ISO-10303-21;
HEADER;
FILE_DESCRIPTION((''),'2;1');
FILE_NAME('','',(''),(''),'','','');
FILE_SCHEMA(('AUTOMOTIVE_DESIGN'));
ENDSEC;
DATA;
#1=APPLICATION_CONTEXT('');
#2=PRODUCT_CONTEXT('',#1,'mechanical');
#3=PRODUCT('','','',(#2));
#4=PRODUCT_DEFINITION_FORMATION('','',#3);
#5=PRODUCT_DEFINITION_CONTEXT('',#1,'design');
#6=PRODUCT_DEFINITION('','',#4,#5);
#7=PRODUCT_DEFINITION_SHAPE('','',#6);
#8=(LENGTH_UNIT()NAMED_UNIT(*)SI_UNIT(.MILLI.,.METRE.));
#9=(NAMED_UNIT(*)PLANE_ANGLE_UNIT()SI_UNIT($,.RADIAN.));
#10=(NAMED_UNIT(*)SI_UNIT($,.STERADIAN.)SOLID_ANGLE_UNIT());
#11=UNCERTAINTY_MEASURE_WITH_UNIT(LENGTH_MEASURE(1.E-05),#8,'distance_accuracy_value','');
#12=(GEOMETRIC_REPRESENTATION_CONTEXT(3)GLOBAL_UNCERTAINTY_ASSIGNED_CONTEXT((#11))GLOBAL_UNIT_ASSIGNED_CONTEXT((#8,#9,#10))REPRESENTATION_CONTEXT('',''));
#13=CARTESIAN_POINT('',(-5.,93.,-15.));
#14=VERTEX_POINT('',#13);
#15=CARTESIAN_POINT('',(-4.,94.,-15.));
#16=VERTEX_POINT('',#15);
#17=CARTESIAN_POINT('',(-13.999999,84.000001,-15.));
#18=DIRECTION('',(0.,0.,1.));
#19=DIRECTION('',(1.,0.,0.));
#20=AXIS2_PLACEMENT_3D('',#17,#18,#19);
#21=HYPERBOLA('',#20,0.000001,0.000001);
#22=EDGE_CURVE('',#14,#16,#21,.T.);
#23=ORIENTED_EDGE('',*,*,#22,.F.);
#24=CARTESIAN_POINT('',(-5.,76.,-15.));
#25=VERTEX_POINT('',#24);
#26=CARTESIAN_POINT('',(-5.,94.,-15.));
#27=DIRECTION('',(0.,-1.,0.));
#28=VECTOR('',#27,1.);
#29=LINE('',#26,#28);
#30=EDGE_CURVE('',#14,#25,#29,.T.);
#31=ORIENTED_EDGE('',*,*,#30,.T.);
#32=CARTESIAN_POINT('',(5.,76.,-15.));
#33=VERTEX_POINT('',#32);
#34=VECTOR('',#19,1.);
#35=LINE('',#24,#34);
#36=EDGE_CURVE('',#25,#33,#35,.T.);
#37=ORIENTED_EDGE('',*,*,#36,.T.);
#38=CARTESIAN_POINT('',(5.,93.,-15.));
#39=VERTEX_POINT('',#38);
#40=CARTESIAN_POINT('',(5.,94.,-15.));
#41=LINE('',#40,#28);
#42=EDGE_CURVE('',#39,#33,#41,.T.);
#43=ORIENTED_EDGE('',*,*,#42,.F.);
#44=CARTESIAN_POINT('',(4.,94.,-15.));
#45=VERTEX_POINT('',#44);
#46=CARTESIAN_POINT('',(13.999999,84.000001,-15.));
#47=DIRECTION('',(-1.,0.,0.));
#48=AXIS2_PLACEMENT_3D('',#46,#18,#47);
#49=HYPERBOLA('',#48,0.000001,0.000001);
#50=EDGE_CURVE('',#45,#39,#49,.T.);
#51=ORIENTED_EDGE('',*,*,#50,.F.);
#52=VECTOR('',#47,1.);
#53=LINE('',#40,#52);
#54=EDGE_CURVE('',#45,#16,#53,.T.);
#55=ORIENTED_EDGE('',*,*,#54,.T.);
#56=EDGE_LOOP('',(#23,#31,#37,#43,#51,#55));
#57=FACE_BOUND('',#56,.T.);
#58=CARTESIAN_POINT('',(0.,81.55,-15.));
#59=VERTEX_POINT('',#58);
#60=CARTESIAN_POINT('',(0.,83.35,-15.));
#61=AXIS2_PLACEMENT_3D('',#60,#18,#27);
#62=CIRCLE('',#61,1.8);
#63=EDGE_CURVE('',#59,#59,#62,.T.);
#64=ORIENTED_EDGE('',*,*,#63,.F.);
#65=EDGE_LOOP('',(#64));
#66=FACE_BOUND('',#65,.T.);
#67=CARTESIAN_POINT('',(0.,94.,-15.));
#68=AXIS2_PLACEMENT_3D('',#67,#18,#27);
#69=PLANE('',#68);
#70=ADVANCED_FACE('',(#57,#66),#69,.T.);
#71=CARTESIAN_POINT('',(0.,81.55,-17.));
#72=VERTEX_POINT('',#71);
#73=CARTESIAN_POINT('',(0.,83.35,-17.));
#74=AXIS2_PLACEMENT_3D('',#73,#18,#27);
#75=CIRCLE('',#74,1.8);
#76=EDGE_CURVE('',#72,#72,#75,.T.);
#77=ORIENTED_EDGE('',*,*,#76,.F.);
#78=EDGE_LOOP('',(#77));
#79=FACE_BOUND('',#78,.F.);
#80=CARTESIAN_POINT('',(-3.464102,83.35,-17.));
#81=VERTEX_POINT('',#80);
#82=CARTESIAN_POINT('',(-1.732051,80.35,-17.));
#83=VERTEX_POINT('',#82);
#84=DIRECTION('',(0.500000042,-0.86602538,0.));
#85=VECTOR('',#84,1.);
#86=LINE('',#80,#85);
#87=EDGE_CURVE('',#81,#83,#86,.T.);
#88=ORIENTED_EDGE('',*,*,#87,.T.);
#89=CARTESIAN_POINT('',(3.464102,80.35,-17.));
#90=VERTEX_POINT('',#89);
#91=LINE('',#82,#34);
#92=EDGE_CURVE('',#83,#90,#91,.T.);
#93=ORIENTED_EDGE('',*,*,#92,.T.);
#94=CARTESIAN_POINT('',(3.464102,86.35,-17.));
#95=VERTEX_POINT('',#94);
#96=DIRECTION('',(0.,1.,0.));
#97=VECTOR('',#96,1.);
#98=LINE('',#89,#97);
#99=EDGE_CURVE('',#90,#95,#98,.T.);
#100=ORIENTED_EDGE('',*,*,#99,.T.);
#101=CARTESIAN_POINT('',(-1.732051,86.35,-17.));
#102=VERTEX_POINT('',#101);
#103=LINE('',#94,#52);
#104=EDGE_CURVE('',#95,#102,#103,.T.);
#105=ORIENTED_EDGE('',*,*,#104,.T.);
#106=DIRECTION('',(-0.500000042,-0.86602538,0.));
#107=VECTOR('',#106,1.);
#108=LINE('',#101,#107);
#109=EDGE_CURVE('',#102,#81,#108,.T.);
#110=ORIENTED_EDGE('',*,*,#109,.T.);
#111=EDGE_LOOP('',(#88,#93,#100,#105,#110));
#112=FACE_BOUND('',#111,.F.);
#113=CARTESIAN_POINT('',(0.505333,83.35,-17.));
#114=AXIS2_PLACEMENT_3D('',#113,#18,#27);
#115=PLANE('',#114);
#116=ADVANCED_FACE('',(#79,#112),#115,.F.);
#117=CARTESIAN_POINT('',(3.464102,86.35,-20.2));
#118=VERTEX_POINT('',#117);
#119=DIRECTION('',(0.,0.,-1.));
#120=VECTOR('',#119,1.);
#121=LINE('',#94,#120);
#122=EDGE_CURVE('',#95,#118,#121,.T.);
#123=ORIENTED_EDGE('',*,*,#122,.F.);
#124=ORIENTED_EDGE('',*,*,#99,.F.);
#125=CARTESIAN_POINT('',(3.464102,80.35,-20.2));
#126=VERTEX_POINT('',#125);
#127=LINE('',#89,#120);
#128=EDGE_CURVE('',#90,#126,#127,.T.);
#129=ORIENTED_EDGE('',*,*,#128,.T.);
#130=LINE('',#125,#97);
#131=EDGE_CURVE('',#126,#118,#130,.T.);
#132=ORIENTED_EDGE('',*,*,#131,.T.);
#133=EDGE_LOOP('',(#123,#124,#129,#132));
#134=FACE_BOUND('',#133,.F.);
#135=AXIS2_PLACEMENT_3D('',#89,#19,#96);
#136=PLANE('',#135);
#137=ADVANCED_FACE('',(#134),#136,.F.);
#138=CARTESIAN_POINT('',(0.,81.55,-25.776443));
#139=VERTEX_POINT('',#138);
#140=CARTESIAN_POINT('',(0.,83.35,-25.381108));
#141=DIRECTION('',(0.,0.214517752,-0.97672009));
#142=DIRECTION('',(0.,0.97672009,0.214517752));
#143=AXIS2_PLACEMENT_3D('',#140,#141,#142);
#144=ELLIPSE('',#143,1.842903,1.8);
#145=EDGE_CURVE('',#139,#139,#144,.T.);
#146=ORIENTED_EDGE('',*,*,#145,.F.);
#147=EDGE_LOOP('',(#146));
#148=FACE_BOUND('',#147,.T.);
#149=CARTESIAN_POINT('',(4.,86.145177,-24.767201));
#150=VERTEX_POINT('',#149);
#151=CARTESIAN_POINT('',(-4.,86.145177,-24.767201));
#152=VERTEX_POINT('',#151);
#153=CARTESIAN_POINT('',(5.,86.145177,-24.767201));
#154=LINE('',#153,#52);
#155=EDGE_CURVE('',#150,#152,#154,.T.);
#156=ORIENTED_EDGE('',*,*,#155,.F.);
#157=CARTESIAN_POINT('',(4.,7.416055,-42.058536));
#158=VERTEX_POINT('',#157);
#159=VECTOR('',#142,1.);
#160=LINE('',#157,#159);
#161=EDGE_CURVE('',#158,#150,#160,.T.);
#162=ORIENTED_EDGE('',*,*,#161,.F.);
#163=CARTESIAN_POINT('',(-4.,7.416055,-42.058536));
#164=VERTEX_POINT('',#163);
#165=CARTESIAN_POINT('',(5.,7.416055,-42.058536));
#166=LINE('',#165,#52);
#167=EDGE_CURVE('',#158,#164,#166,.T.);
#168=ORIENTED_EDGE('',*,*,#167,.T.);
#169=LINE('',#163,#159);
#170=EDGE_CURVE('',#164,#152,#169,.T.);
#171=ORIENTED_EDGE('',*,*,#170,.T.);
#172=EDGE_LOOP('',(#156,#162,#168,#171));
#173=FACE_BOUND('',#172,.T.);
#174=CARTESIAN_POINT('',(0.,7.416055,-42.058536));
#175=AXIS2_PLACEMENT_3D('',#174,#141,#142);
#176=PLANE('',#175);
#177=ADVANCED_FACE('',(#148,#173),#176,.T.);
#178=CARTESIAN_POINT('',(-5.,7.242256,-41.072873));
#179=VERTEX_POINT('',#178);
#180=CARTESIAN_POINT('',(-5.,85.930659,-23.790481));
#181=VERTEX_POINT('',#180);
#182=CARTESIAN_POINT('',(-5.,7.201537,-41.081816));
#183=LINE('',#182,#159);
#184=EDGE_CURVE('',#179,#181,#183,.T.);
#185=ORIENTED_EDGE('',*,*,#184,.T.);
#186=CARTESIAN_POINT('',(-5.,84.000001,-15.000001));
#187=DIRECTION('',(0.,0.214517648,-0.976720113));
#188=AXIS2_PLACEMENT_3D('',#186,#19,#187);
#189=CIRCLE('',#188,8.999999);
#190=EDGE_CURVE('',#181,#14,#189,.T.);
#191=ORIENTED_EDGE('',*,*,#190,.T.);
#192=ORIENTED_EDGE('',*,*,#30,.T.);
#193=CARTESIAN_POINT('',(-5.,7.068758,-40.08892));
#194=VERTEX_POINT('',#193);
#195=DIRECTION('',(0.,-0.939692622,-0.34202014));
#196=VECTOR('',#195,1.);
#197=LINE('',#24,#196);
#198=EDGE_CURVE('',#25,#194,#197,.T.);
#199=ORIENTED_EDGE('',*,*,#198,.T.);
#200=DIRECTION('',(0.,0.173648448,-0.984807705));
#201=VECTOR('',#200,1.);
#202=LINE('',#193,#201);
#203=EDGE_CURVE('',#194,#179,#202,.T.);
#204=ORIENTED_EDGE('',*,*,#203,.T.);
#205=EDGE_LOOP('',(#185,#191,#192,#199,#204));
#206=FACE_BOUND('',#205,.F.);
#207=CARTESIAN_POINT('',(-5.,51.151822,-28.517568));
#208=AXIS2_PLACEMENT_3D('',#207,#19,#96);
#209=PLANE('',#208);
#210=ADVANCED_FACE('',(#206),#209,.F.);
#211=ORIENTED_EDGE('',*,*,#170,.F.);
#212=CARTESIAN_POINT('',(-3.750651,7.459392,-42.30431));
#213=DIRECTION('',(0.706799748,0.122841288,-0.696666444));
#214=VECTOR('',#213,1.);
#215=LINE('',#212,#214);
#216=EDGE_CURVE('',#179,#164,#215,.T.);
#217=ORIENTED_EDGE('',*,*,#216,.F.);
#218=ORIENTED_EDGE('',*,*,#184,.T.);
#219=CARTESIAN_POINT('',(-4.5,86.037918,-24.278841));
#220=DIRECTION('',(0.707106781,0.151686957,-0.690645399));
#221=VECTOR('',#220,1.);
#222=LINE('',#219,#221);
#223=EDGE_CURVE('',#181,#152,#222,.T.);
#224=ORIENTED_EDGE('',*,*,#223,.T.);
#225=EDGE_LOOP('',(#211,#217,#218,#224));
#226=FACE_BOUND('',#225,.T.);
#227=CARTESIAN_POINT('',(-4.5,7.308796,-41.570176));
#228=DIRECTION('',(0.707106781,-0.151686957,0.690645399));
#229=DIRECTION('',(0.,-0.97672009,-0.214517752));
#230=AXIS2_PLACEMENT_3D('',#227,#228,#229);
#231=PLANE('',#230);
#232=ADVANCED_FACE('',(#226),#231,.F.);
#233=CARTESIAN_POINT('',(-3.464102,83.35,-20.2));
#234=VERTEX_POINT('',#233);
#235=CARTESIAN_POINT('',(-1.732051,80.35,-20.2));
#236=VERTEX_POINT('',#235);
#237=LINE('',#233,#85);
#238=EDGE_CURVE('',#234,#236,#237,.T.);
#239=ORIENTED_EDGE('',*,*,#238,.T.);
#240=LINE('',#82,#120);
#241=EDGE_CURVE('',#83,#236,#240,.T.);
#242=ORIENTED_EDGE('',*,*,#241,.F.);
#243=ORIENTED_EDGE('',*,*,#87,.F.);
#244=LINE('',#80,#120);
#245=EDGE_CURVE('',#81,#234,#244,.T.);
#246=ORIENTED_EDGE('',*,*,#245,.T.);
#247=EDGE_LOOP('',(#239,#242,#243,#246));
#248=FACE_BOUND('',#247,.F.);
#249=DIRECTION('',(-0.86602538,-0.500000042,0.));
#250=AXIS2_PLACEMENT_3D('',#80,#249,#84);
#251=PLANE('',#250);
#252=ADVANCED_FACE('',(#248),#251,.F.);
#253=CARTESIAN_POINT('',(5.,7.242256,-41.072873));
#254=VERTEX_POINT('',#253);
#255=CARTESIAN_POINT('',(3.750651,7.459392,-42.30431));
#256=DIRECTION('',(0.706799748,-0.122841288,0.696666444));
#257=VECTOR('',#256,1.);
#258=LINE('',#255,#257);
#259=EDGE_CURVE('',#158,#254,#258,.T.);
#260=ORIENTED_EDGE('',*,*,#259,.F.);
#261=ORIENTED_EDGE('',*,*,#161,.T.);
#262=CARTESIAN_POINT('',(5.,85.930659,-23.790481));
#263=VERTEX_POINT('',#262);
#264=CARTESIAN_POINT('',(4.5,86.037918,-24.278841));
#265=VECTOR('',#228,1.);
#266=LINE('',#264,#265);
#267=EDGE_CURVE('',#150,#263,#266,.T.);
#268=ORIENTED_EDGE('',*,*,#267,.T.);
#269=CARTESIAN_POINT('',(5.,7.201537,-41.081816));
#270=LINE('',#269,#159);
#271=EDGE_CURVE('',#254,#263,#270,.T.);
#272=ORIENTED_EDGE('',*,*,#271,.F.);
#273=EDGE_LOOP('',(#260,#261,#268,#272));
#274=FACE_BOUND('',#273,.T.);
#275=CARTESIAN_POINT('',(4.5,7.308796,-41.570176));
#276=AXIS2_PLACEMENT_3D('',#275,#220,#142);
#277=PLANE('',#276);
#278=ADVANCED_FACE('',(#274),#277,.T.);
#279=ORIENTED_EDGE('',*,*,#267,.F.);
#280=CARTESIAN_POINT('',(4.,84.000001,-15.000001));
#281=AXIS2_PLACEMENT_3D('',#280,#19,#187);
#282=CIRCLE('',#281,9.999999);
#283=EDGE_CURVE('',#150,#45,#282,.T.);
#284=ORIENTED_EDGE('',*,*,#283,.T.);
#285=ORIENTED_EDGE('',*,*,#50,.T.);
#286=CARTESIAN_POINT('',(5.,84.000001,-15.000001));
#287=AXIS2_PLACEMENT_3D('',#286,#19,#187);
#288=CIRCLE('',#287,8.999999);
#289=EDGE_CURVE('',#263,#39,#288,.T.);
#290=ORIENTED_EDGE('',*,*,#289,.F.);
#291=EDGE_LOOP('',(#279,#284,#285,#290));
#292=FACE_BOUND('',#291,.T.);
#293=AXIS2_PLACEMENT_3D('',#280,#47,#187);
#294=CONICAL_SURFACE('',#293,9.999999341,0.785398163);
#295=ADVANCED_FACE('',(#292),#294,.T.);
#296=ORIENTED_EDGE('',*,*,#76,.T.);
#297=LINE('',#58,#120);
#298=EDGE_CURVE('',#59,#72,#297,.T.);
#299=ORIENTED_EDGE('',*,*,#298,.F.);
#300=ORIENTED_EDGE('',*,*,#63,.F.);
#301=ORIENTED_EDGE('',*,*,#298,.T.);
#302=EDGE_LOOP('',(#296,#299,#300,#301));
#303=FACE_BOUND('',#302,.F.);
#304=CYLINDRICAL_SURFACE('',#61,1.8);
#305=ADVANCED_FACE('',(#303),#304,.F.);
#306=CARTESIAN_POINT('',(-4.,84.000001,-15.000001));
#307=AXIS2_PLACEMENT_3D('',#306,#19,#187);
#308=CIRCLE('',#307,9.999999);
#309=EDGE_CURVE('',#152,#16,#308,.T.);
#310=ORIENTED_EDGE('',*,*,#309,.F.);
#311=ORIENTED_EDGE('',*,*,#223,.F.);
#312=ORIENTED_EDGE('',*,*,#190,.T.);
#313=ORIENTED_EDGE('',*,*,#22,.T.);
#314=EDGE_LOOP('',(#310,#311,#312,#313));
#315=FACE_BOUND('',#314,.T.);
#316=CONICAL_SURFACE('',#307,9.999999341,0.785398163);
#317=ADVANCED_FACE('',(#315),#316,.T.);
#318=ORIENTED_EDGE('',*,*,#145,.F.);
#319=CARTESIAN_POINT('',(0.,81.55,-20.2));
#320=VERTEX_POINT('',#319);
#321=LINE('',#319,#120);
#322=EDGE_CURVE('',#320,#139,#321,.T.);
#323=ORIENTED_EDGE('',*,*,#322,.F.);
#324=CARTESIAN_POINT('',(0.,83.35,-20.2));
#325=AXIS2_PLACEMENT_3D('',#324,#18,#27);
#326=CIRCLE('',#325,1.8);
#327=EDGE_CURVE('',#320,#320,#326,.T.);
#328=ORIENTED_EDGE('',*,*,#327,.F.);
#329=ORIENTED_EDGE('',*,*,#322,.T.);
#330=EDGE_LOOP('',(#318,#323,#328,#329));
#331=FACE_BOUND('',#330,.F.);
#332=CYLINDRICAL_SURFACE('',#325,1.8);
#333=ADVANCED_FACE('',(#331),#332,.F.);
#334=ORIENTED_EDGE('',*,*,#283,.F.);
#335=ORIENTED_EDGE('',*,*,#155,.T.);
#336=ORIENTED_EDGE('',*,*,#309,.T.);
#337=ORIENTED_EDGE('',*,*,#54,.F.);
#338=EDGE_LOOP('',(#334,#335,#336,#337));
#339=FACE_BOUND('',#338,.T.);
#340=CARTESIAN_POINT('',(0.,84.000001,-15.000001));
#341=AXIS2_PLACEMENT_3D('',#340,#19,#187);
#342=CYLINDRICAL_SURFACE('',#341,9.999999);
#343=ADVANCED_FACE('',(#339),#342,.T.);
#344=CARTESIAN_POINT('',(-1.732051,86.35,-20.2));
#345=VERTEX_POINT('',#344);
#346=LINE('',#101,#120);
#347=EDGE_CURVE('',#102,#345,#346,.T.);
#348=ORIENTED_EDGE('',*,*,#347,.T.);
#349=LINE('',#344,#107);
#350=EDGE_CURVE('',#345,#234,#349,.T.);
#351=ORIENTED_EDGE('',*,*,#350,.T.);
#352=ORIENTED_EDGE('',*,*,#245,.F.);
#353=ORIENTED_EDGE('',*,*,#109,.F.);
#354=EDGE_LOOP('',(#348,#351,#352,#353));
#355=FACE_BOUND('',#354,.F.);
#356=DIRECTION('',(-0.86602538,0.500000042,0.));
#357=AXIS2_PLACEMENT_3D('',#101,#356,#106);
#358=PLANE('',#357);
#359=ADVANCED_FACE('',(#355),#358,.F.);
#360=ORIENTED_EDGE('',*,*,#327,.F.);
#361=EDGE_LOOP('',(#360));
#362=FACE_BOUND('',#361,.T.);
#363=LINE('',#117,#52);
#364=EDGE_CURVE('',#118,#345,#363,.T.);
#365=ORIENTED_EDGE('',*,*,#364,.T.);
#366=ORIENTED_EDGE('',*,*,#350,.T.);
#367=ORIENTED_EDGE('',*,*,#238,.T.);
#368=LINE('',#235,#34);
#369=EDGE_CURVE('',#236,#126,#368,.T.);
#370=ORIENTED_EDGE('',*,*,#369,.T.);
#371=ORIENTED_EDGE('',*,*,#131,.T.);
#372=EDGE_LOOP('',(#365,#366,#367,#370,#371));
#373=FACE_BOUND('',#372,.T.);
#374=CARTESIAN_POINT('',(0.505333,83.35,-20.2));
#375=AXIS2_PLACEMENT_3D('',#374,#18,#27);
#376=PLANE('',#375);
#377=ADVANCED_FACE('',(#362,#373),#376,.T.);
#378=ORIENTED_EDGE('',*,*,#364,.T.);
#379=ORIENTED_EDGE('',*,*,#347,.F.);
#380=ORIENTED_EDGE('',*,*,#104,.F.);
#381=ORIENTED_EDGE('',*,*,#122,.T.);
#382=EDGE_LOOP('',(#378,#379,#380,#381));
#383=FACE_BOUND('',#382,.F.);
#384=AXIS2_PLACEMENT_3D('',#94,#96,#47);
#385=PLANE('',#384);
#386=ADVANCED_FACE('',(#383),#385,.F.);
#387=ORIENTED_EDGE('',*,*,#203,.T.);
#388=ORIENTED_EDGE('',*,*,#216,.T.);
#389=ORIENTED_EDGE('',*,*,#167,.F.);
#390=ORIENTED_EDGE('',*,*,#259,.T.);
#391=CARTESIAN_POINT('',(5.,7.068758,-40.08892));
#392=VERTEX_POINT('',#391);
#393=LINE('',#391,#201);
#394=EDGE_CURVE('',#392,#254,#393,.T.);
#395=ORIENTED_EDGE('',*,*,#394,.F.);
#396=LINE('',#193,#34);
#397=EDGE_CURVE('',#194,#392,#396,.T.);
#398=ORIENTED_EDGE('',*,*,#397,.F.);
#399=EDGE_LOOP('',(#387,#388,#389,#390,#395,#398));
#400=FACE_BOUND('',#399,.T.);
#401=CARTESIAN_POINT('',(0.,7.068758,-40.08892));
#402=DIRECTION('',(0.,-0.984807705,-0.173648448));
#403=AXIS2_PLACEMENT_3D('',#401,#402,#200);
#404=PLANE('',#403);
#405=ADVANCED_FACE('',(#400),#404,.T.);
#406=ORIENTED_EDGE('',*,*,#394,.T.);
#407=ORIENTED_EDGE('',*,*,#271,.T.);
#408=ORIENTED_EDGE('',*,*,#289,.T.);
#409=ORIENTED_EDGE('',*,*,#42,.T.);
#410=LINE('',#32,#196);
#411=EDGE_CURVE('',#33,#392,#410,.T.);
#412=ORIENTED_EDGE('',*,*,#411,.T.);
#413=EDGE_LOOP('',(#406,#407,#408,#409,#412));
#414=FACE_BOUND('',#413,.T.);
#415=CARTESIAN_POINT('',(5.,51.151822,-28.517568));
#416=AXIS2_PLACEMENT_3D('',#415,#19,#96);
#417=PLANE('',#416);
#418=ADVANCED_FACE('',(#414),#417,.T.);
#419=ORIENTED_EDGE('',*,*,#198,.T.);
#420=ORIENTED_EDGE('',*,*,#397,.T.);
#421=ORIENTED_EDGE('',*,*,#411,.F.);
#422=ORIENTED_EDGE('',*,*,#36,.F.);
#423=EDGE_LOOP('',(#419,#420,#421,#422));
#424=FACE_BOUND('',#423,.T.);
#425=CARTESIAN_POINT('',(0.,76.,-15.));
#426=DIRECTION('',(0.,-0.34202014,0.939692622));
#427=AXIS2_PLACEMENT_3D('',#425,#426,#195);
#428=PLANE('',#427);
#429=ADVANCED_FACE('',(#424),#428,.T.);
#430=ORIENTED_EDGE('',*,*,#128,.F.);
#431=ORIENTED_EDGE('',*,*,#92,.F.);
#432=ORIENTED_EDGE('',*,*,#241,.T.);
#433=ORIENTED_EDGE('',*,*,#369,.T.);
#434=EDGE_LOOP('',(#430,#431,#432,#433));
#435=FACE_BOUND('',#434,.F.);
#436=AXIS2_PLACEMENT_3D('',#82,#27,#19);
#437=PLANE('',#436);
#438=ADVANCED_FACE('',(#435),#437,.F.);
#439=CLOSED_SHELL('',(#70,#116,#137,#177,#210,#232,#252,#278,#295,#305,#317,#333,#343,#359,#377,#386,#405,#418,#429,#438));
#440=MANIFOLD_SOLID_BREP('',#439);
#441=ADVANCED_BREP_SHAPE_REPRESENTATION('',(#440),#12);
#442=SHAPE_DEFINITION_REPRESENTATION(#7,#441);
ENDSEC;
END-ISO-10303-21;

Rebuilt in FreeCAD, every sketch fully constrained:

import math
import FreeCAD as App
import Part
import Sketcher
from FreeCAD import Vector
Q = App.Units.Quantity


def edges_at(feature, points):
    """Names of the edges that pass closest to the given points."""
    edges = feature.Shape.Edges
    near = lambda p: min(range(len(edges)), key=lambda i: edges[i].distToShape(Part.Vertex(*p))[0])
    return sorted({f"Edge{near(p) + 1}" for p in points})


def add_polygon(sketch, points):
    """Adds a closed chain of lines whose ends are joined by coincident constraints."""
    first, n = sketch.GeometryCount, len(points)
    for a, b in zip(points, points[1:] + points[:1]):
        sketch.addGeometry(Part.LineSegment(App.Vector(*a, 0), App.Vector(*b, 0)), False)
    for i in range(n):
        sketch.addConstraint(Sketcher.Constraint("Coincident", first + i, 2, first + (i + 1) % n, 1))

doc = App.newDocument("Part")
body = doc.addObject("PartDesign::Body", "Body")

sketch1 = body.newObject("Sketcher::SketchObject", "Sketch")
sketch1.AttachmentSupport = (doc.getObject("YZ_Plane"), [""])
sketch1.MapMode = "FlatFace"
sketch1.addGeometry([
    Part.LineSegment(Vector(94, -15, 0), Vector(76, -15, 0)),
    Part.LineSegment(Vector(76, -15, 0), Vector(7.068758, -40.08892, 0)),
    Part.LineSegment(Vector(7.068758, -40.08892, 0), Vector(7.416055, -42.058536, 0)),
    Part.LineSegment(Vector(7.416055, -42.058536, 0), Vector(86.145177, -24.767201, 0)),
    Part.ArcOfCircle(Part.Circle(Vector(84.000001, -15.000001, 0), Vector(0, 0, 1), 9.999999), math.radians(-77.61277), math.radians(0.000003)),
], False)
sketch1.addConstraint([
    Sketcher.Constraint("Coincident", 0, 2, 1, 1),
    Sketcher.Constraint("Coincident", 1, 2, 2, 1),
    Sketcher.Constraint("Coincident", 2, 2, 3, 1),
    Sketcher.Constraint("Tangent", 3, 2, 4, 1),
    Sketcher.Constraint("Coincident", 4, 2, 0, 1),
    Sketcher.Constraint("Horizontal", 0),
    Sketcher.Constraint("Horizontal", 4, 3, 0, 2),
    Sketcher.Constraint("Radius", 4, 9.999999),
    Sketcher.Constraint("DistanceX", 0, 2, 0, 1, 18.0),
    Sketcher.Constraint("Angle", 1, Q("-160 deg")),
    Sketcher.Constraint("Angle", 2, Q("-79.999984 deg")),
    Sketcher.Constraint("Distance", 2, 2.000001),
    Sketcher.Constraint("DistanceX", -1, 1, 4, 3, 84.000001),
    Sketcher.Constraint("DistanceY", 4, 3, -1, 1, 15.000001),
    Sketcher.Constraint("DistanceY", 1, 2, -1, 1, 40.08892),
])
pad1 = body.newObject("PartDesign::Pad", "Pad")
pad1.Profile = sketch1
pad1.Length = 10
pad1.Midplane = True

sketch2 = body.newObject("Sketcher::SketchObject", "Sketch001")
sketch2.AttachmentSupport = (doc.getObject("XY_Plane"), [""])
sketch2.MapMode = "FlatFace"
sketch2.AttachmentOffset = App.Placement(Vector(0, 0, -15), App.Rotation())
sketch2.addGeometry(Part.Circle(Vector(0, 83.35, 0), Vector(0, 0, 1), 1.8), False)
sketch2.addConstraint([
    Sketcher.Constraint("PointOnObject", 0, 3, -2),
    Sketcher.Constraint("Diameter", 0, 3.6),
    Sketcher.Constraint("DistanceY", -1, 1, 0, 3, 83.35),
])
pocket1 = body.newObject("PartDesign::Pocket", "Pocket")
pocket1.Profile = sketch2
pocket1.Length = 2

sketch3 = body.newObject("Sketcher::SketchObject", "Sketch002")
sketch3.AttachmentSupport = (doc.getObject("XY_Plane"), [""])
sketch3.MapMode = "FlatFace"
sketch3.AttachmentOffset = App.Placement(Vector(0, 0, -17), App.Rotation())
add_polygon(sketch3, [(-1.732051, 86.35), (-3.464102, 83.35), (-1.732051, 80.35), (3.464102, 80.35), (3.464102, 86.35)])
sketch3.addConstraint([
    Sketcher.Constraint("Horizontal", 2),
    Sketcher.Constraint("Vertical", 3),
    Sketcher.Constraint("Horizontal", 4),
    Sketcher.Constraint("Vertical", 1, 2, 4, 2),
    Sketcher.Constraint("Equal", 0, 1),
    Sketcher.Constraint("DistanceY", 3, 1, 3, 2, 6.0),
    Sketcher.Constraint("Angle", 0, Q("-120.000003 deg")),
    Sketcher.Constraint("DistanceY", -1, 1, 0, 2, 83.35),
    Sketcher.Constraint("DistanceX", 0, 2, -1, 1, 3.464102),
    Sketcher.Constraint("DistanceX", -1, 1, 2, 2, 3.464102),
])
pocket2 = body.newObject("PartDesign::Pocket", "Pocket001")
pocket2.Profile = sketch3
pocket2.Length = 3.2

sketch4 = body.newObject("Sketcher::SketchObject", "Sketch003")
sketch4.AttachmentSupport = (doc.getObject("XY_Plane"), [""])
sketch4.MapMode = "FlatFace"
sketch4.AttachmentOffset = App.Placement(Vector(0, 0, -20.2), App.Rotation())
sketch4.addGeometry(Part.Circle(Vector(0, 83.35, 0), Vector(0, 0, 1), 1.8), False)
sketch4.addConstraint([
    Sketcher.Constraint("PointOnObject", 0, 3, -2),
    Sketcher.Constraint("Diameter", 0, 3.6),
    Sketcher.Constraint("DistanceY", -1, 1, 0, 3, 83.35),
])
pocket3 = body.newObject("PartDesign::Pocket", "Pocket002")
pocket3.Profile = sketch4
pocket3.Type = "ThroughAll"
doc.recompute()

chamfer = body.newObject("PartDesign::Chamfer", "Chamfer")
chamfer.Base = (pocket3, edges_at(pocket3, [(5, 91.793, -21.267), (-5, 91.793, -21.267)]))
chamfer.Size = 1

doc.recompute()
